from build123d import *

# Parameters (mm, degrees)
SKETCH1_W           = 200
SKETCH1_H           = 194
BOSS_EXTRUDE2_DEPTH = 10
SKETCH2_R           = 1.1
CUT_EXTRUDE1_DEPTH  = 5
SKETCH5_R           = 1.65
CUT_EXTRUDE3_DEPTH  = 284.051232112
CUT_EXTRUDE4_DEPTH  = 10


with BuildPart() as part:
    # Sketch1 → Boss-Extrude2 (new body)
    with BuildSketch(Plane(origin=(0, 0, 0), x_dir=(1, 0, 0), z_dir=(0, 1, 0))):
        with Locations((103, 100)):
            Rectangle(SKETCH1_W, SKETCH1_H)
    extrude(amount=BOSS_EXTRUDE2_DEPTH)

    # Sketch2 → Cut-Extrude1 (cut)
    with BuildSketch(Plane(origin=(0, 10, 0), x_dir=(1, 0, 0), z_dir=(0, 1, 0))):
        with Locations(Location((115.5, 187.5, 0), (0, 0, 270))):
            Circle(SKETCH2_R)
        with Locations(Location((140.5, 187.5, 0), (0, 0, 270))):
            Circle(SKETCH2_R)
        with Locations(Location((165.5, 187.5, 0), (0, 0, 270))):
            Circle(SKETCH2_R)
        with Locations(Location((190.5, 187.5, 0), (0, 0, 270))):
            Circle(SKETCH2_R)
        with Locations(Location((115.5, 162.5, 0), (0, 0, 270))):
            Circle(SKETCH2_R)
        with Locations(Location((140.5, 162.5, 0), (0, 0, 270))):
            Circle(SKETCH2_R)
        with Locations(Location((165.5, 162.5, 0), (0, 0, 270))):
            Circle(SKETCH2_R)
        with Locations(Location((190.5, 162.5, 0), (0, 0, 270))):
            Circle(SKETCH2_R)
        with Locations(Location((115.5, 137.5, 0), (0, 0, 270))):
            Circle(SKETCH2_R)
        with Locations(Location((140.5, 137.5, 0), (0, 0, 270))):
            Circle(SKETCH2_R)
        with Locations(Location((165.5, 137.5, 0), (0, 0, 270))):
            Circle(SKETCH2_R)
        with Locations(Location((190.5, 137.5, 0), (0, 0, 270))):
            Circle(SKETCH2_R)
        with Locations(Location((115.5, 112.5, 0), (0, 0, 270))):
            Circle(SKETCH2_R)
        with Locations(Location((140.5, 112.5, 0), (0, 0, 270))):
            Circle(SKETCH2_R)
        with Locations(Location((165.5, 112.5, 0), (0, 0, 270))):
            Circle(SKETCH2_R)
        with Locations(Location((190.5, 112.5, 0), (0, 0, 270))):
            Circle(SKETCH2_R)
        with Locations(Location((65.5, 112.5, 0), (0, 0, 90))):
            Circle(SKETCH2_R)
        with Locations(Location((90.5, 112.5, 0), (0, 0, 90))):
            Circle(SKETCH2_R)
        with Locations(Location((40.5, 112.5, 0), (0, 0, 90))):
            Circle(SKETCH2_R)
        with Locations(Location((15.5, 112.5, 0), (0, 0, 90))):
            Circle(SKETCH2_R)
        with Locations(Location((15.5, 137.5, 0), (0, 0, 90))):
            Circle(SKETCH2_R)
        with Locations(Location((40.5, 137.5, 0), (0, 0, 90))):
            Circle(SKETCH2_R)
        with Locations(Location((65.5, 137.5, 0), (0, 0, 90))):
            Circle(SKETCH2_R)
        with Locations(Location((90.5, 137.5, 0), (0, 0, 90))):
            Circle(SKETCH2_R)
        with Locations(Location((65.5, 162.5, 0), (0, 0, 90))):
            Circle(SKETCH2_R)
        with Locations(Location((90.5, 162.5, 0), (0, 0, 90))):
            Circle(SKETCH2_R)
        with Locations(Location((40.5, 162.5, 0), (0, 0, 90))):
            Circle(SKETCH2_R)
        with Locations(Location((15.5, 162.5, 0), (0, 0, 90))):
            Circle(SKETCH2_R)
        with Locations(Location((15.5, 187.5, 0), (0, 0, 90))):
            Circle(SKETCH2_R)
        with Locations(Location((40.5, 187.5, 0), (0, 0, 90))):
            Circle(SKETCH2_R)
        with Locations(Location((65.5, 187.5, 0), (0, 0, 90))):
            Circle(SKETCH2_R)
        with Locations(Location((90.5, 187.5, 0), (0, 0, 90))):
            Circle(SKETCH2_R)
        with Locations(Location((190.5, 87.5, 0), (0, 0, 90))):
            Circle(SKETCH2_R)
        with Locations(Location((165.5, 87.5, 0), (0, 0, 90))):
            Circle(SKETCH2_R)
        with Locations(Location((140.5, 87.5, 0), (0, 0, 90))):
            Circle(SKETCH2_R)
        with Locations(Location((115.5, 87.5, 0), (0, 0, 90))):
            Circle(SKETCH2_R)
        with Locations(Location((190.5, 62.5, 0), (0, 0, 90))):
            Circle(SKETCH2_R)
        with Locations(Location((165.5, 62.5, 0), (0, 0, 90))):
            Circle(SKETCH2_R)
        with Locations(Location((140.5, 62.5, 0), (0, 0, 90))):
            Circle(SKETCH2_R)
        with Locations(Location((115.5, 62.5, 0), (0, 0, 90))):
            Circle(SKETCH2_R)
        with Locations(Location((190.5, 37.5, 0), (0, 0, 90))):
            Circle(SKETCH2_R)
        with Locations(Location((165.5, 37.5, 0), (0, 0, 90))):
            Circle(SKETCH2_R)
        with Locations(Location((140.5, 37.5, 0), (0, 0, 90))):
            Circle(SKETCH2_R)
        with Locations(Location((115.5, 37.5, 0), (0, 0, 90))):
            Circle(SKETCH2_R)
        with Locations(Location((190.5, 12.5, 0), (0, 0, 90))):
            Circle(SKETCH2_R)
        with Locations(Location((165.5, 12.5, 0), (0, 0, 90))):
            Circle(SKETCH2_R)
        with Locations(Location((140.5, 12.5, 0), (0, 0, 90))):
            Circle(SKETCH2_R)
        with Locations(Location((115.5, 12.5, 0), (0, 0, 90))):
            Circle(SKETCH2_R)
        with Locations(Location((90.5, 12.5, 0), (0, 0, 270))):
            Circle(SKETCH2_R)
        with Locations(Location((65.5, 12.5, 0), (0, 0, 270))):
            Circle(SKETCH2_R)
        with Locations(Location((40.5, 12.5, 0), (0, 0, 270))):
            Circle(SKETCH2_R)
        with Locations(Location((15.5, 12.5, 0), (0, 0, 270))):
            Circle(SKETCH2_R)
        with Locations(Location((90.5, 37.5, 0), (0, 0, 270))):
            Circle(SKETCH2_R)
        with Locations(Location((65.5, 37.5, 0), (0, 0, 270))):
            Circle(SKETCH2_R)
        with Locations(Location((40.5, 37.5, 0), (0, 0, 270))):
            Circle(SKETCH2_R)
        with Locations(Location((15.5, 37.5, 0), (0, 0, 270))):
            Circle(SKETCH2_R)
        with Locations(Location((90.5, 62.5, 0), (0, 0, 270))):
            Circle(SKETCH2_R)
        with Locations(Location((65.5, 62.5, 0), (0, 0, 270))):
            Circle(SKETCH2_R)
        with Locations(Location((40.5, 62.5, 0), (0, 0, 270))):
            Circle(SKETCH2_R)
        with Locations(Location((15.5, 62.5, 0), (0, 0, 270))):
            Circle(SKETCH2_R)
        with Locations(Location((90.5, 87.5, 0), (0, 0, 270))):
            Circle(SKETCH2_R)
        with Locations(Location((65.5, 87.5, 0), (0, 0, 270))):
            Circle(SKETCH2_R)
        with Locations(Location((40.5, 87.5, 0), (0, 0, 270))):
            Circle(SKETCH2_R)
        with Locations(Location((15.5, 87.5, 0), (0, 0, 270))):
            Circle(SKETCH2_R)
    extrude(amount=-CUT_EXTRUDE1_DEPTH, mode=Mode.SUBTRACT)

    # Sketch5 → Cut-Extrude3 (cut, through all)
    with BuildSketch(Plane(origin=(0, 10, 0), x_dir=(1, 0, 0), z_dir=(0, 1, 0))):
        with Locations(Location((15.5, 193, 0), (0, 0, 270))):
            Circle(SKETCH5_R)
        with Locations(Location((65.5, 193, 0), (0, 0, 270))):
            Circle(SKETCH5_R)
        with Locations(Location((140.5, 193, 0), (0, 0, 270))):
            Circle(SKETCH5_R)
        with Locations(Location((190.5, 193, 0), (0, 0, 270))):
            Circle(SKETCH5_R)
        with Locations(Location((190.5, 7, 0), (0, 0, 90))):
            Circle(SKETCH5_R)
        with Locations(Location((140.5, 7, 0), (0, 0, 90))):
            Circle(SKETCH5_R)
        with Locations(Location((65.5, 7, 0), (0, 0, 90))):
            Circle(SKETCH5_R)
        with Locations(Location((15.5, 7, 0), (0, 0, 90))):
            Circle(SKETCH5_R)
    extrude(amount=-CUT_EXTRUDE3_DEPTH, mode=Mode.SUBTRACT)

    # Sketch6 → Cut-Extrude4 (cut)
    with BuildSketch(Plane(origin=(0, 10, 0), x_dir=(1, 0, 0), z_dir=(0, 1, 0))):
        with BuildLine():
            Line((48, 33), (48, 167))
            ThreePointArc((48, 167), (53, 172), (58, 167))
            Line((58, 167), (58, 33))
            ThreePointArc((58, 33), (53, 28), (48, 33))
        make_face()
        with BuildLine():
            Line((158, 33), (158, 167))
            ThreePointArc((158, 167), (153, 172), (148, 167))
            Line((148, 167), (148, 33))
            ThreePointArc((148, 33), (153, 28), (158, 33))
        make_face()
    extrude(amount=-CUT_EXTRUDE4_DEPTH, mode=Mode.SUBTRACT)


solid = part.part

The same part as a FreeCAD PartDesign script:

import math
import FreeCAD as App
import Part
import Sketcher

V = App.Vector
Q = App.Units.Quantity


def add_polygon(sketch, points):
    """Adds a closed chain of lines whose ends are joined by coincident constraints."""
    first, n = sketch.GeometryCount, len(points)
    for a, b in zip(points, points[1:] + points[:1]):
        sketch.addGeometry(Part.LineSegment(App.Vector(*a, 0), App.Vector(*b, 0)), False)
    for i in range(n):
        sketch.addConstraint(Sketcher.Constraint("Coincident", first + i, 2, first + (i + 1) % n, 1))

doc = App.newDocument("Part")
params = doc.addObject("Spreadsheet::Sheet", "Params")
for row, (alias, value) in enumerate([
    ("sketch1_width", "200 mm"),
    ("sketch1_height", "194 mm"),
    ("pad1_length", "10 mm"),
    ("sketch2_diameter", "2.2 mm"),
    ("pocket1_length", "5 mm"),
    ("sketch3_diameter", "3.3 mm"),
    ("sketch4_radius", "5 mm"),
    ("sketch4_height", "134 mm"),
    ("pocket3_length", "10 mm"),
], start=1):
    params.set(f"A{row}", alias)
    params.set(f"B{row}", "=" + value)
    params.setAlias(f"B{row}", alias)

body = doc.addObject("PartDesign::Body", "Body")

# Sketch on XZ plane
sketch1 = body.newObject("Sketcher::SketchObject", "Sketch")
sketch1.AttachmentSupport = (doc.getObject("XZ_Plane"), [""])
sketch1.MapMode = "FlatFace"
add_polygon(sketch1, [(3, -197), (3, -3), (203, -3), (203, -197)])  # lines 0-3
sketch1.addConstraint(Sketcher.Constraint("Vertical", 0))
sketch1.addConstraint(Sketcher.Constraint("Horizontal", 1))
sketch1.addConstraint(Sketcher.Constraint("Vertical", 2))
sketch1.addConstraint(Sketcher.Constraint("Horizontal", 3))
sketch1.addConstraint(Sketcher.Constraint("DistanceX", 1, 1, 1, 2, Q("200 mm")))
sketch1.addConstraint(Sketcher.Constraint("DistanceY", 0, 1, 0, 2, Q("194 mm")))
sketch1.addConstraint(Sketcher.Constraint("DistanceX", -1, 1, 0, 2, Q("3 mm")))
sketch1.addConstraint(Sketcher.Constraint("DistanceY", 0, 2, -1, 1, Q("3 mm")))
sketch1.setExpression("Constraints[8]", "Params.sketch1_width")
sketch1.setExpression("Constraints[9]", "Params.sketch1_height")
pad1 = body.newObject("PartDesign::Pad", "Pad")
pad1.Profile = sketch1
pad1.setExpression("Length", "Params.pad1_length")
pad1.Reversed = True

# Sketch on XZ plane
sketch2 = body.newObject("Sketcher::SketchObject", "Sketch001")
sketch2.AttachmentSupport = (doc.getObject("XZ_Plane"), [""])
sketch2.MapMode = "FlatFace"
sketch2.AttachmentOffset = App.Placement(V(0, 0, -10), App.Rotation())
sketch2.addGeometry(Part.Circle(V(115.5, -187.5, 0), V(0, 0, 1), 1.1), False)
sketch2.addGeometry(Part.Circle(V(140.5, -187.5, 0), V(0, 0, 1), 1.1), False)
sketch2.addGeometry(Part.Circle(V(165.5, -187.5, 0), V(0, 0, 1), 1.1), False)
sketch2.addGeometry(Part.Circle(V(190.5, -187.5, 0), V(0, 0, 1), 1.1), False)
sketch2.addGeometry(Part.Circle(V(115.5, -162.5, 0), V(0, 0, 1), 1.1), False)
sketch2.addGeometry(Part.Circle(V(140.5, -162.5, 0), V(0, 0, 1), 1.1), False)
sketch2.addGeometry(Part.Circle(V(165.5, -162.5, 0), V(0, 0, 1), 1.1), False)
sketch2.addGeometry(Part.Circle(V(190.5, -162.5, 0), V(0, 0, 1), 1.1), False)
sketch2.addGeometry(Part.Circle(V(115.5, -137.5, 0), V(0, 0, 1), 1.1), False)
sketch2.addGeometry(Part.Circle(V(140.5, -137.5, 0), V(0, 0, 1), 1.1), False)
sketch2.addGeometry(Part.Circle(V(165.5, -137.5, 0), V(0, 0, 1), 1.1), False)
sketch2.addGeometry(Part.Circle(V(190.5, -137.5, 0), V(0, 0, 1), 1.1), False)
sketch2.addGeometry(Part.Circle(V(115.5, -112.5, 0), V(0, 0, 1), 1.1), False)
sketch2.addGeometry(Part.Circle(V(140.5, -112.5, 0), V(0, 0, 1), 1.1), False)
sketch2.addGeometry(Part.Circle(V(165.5, -112.5, 0), V(0, 0, 1), 1.1), False)
sketch2.addGeometry(Part.Circle(V(190.5, -112.5, 0), V(0, 0, 1), 1.1), False)
sketch2.addGeometry(Part.Circle(V(65.5, -112.5, 0), V(0, 0, 1), 1.1), False)
sketch2.addGeometry(Part.Circle(V(90.5, -112.5, 0), V(0, 0, 1), 1.1), False)
sketch2.addGeometry(Part.Circle(V(40.5, -112.5, 0), V(0, 0, 1), 1.1), False)
sketch2.addGeometry(Part.Circle(V(15.5, -112.5, 0), V(0, 0, 1), 1.1), False)
sketch2.addGeometry(Part.Circle(V(15.5, -137.5, 0), V(0, 0, 1), 1.1), False)
sketch2.addGeometry(Part.Circle(V(40.5, -137.5, 0), V(0, 0, 1), 1.1), False)
sketch2.addGeometry(Part.Circle(V(65.5, -137.5, 0), V(0, 0, 1), 1.1), False)
sketch2.addGeometry(Part.Circle(V(90.5, -137.5, 0), V(0, 0, 1), 1.1), False)
sketch2.addGeometry(Part.Circle(V(65.5, -162.5, 0), V(0, 0, 1), 1.1), False)
sketch2.addGeometry(Part.Circle(V(90.5, -162.5, 0), V(0, 0, 1), 1.1), False)
sketch2.addGeometry(Part.Circle(V(40.5, -162.5, 0), V(0, 0, 1), 1.1), False)
sketch2.addGeometry(Part.Circle(V(15.5, -162.5, 0), V(0, 0, 1), 1.1), False)
sketch2.addGeometry(Part.Circle(V(15.5, -187.5, 0), V(0, 0, 1), 1.1), False)
sketch2.addGeometry(Part.Circle(V(40.5, -187.5, 0), V(0, 0, 1), 1.1), False)
sketch2.addGeometry(Part.Circle(V(65.5, -187.5, 0), V(0, 0, 1), 1.1), False)
sketch2.addGeometry(Part.Circle(V(90.5, -187.5, 0), V(0, 0, 1), 1.1), False)
sketch2.addGeometry(Part.Circle(V(190.5, -87.5, 0), V(0, 0, 1), 1.1), False)
sketch2.addGeometry(Part.Circle(V(165.5, -87.5, 0), V(0, 0, 1), 1.1), False)
sketch2.addGeometry(Part.Circle(V(140.5, -87.5, 0), V(0, 0, 1), 1.1), False)
sketch2.addGeometry(Part.Circle(V(115.5, -87.5, 0), V(0, 0, 1), 1.1), False)
sketch2.addGeometry(Part.Circle(V(190.5, -62.5, 0), V(0, 0, 1), 1.1), False)
sketch2.addGeometry(Part.Circle(V(165.5, -62.5, 0), V(0, 0, 1), 1.1), False)
sketch2.addGeometry(Part.Circle(V(140.5, -62.5, 0), V(0, 0, 1), 1.1), False)
sketch2.addGeometry(Part.Circle(V(115.5, -62.5, 0), V(0, 0, 1), 1.1), False)
sketch2.addGeometry(Part.Circle(V(190.5, -37.5, 0), V(0, 0, 1), 1.1), False)
sketch2.addGeometry(Part.Circle(V(165.5, -37.5, 0), V(0, 0, 1), 1.1), False)
sketch2.addGeometry(Part.Circle(V(140.5, -37.5, 0), V(0, 0, 1), 1.1), False)
sketch2.addGeometry(Part.Circle(V(115.5, -37.5, 0), V(0, 0, 1), 1.1), False)
sketch2.addGeometry(Part.Circle(V(190.5, -12.5, 0), V(0, 0, 1), 1.1), False)
sketch2.addGeometry(Part.Circle(V(165.5, -12.5, 0), V(0, 0, 1), 1.1), False)
sketch2.addGeometry(Part.Circle(V(140.5, -12.5, 0), V(0, 0, 1), 1.1), False)
sketch2.addGeometry(Part.Circle(V(115.5, -12.5, 0), V(0, 0, 1), 1.1), False)
sketch2.addGeometry(Part.Circle(V(90.5, -12.5, 0), V(0, 0, 1), 1.1), False)
sketch2.addGeometry(Part.Circle(V(65.5, -12.5, 0), V(0, 0, 1), 1.1), False)
sketch2.addGeometry(Part.Circle(V(40.5, -12.5, 0), V(0, 0, 1), 1.1), False)
sketch2.addGeometry(Part.Circle(V(15.5, -12.5, 0), V(0, 0, 1), 1.1), False)
sketch2.addGeometry(Part.Circle(V(90.5, -37.5, 0), V(0, 0, 1), 1.1), False)
sketch2.addGeometry(Part.Circle(V(65.5, -37.5, 0), V(0, 0, 1), 1.1), False)
sketch2.addGeometry(Part.Circle(V(40.5, -37.5, 0), V(0, 0, 1), 1.1), False)
sketch2.addGeometry(Part.Circle(V(15.5, -37.5, 0), V(0, 0, 1), 1.1), False)
sketch2.addGeometry(Part.Circle(V(90.5, -62.5, 0), V(0, 0, 1), 1.1), False)
sketch2.addGeometry(Part.Circle(V(65.5, -62.5, 0), V(0, 0, 1), 1.1), False)
sketch2.addGeometry(Part.Circle(V(40.5, -62.5, 0), V(0, 0, 1), 1.1), False)
sketch2.addGeometry(Part.Circle(V(15.5, -62.5, 0), V(0, 0, 1), 1.1), False)
sketch2.addGeometry(Part.Circle(V(90.5, -87.5, 0), V(0, 0, 1), 1.1), False)
sketch2.addGeometry(Part.Circle(V(65.5, -87.5, 0), V(0, 0, 1), 1.1), False)
sketch2.addGeometry(Part.Circle(V(40.5, -87.5, 0), V(0, 0, 1), 1.1), False)
sketch2.addGeometry(Part.Circle(V(15.5, -87.5, 0), V(0, 0, 1), 1.1), False)
sketch2.addConstraint(Sketcher.Constraint("Equal", 0, 1))
sketch2.addConstraint(Sketcher.Constraint("Equal", 1, 2))
sketch2.addConstraint(Sketcher.Constraint("Equal", 2, 3))
sketch2.addConstraint(Sketcher.Constraint("Equal", 3, 4))
sketch2.addConstraint(Sketcher.Constraint("Equal", 4, 5))
sketch2.addConstraint(Sketcher.Constraint("Equal", 5, 6))
sketch2.addConstraint(Sketcher.Constraint("Equal", 6, 7))
sketch2.addConstraint(Sketcher.Constraint("Equal", 7, 8))
sketch2.addConstraint(Sketcher.Constraint("Equal", 8, 9))
sketch2.addConstraint(Sketcher.Constraint("Equal", 9, 10))
sketch2.addConstraint(Sketcher.Constraint("Equal", 10, 11))
sketch2.addConstraint(Sketcher.Constraint("Equal", 11, 12))
sketch2.addConstraint(Sketcher.Constraint("Equal", 12, 13))
sketch2.addConstraint(Sketcher.Constraint("Equal", 13, 14))
sketch2.addConstraint(Sketcher.Constraint("Equal", 14, 15))
sketch2.addConstraint(Sketcher.Constraint("Equal", 15, 16))
sketch2.addConstraint(Sketcher.Constraint("Equal", 16, 17))
sketch2.addConstraint(Sketcher.Constraint("Equal", 17, 18))
sketch2.addConstraint(Sketcher.Constraint("Equal", 18, 19))
sketch2.addConstraint(Sketcher.Constraint("Equal", 19, 20))
sketch2.addConstraint(Sketcher.Constraint("Equal", 20, 21))
sketch2.addConstraint(Sketcher.Constraint("Equal", 21, 22))
sketch2.addConstraint(Sketcher.Constraint("Equal", 22, 23))
sketch2.addConstraint(Sketcher.Constraint("Equal", 23, 24))
sketch2.addConstraint(Sketcher.Constraint("Equal", 24, 25))
sketch2.addConstraint(Sketcher.Constraint("Equal", 25, 26))
sketch2.addConstraint(Sketcher.Constraint("Equal", 26, 27))
sketch2.addConstraint(Sketcher.Constraint("Equal", 27, 28))
sketch2.addConstraint(Sketcher.Constraint("Equal", 28, 29))
sketch2.addConstraint(Sketcher.Constraint("Equal", 29, 30))
sketch2.addConstraint(Sketcher.Constraint("Equal", 30, 31))
sketch2.addConstraint(Sketcher.Constraint("Equal", 31, 32))
sketch2.addConstraint(Sketcher.Constraint("Equal", 32, 33))
sketch2.addConstraint(Sketcher.Constraint("Equal", 33, 34))
sketch2.addConstraint(Sketcher.Constraint("Equal", 34, 35))
sketch2.addConstraint(Sketcher.Constraint("Equal", 35, 36))
sketch2.addConstraint(Sketcher.Constraint("Equal", 36, 37))
sketch2.addConstraint(Sketcher.Constraint("Equal", 37, 38))
sketch2.addConstraint(Sketcher.Constraint("Equal", 38, 39))
sketch2.addConstraint(Sketcher.Constraint("Equal", 39, 40))
sketch2.addConstraint(Sketcher.Constraint("Equal", 40, 41))
sketch2.addConstraint(Sketcher.Constraint("Equal", 41, 42))
sketch2.addConstraint(Sketcher.Constraint("Equal", 42, 43))
sketch2.addConstraint(Sketcher.Constraint("Equal", 43, 44))
sketch2.addConstraint(Sketcher.Constraint("Equal", 44, 45))
sketch2.addConstraint(Sketcher.Constraint("Equal", 45, 46))
sketch2.addConstraint(Sketcher.Constraint("Equal", 46, 47))
sketch2.addConstraint(Sketcher.Constraint("Equal", 47, 48))
sketch2.addConstraint(Sketcher.Constraint("Equal", 48, 49))
sketch2.addConstraint(Sketcher.Constraint("Equal", 49, 50))
sketch2.addConstraint(Sketcher.Constraint("Equal", 50, 51))
sketch2.addConstraint(Sketcher.Constraint("Equal", 51, 52))
sketch2.addConstraint(Sketcher.Constraint("Equal", 52, 53))
sketch2.addConstraint(Sketcher.Constraint("Equal", 53, 54))
sketch2.addConstraint(Sketcher.Constraint("Equal", 54, 55))
sketch2.addConstraint(Sketcher.Constraint("Equal", 55, 56))
sketch2.addConstraint(Sketcher.Constraint("Equal", 56, 57))
sketch2.addConstraint(Sketcher.Constraint("Equal", 57, 58))
sketch2.addConstraint(Sketcher.Constraint("Equal", 58, 59))
sketch2.addConstraint(Sketcher.Constraint("Equal", 59, 60))
sketch2.addConstraint(Sketcher.Constraint("Equal", 60, 61))
sketch2.addConstraint(Sketcher.Constraint("Equal", 61, 62))
sketch2.addConstraint(Sketcher.Constraint("Equal", 62, 63))
sketch2.addConstraint(Sketcher.Constraint("Horizontal", 0, 3, 1, 3))
sketch2.addConstraint(Sketcher.Constraint("Horizontal", 1, 3, 2, 3))
sketch2.addConstraint(Sketcher.Constraint("Horizontal", 2, 3, 3, 3))
sketch2.addConstraint(Sketcher.Constraint("Horizontal", 4, 3, 5, 3))
sketch2.addConstraint(Sketcher.Constraint("Horizontal", 5, 3, 6, 3))
sketch2.addConstraint(Sketcher.Constraint("Horizontal", 6, 3, 7, 3))
sketch2.addConstraint(Sketcher.Constraint("Horizontal", 8, 3, 9, 3))
sketch2.addConstraint(Sketcher.Constraint("Horizontal", 9, 3, 10, 3))
sketch2.addConstraint(Sketcher.Constraint("Horizontal", 10, 3, 11, 3))
sketch2.addConstraint(Sketcher.Constraint("Horizontal", 12, 3, 13, 3))
sketch2.addConstraint(Sketcher.Constraint("Horizontal", 13, 3, 14, 3))
sketch2.addConstraint(Sketcher.Constraint("Horizontal", 14, 3, 15, 3))
sketch2.addConstraint(Sketcher.Constraint("Horizontal", 15, 3, 16, 3))
sketch2.addConstraint(Sketcher.Constraint("Horizontal", 16, 3, 17, 3))
sketch2.addConstraint(Sketcher.Constraint("Horizontal", 17, 3, 18, 3))
sketch2.addConstraint(Sketcher.Constraint("Horizontal", 18, 3, 19, 3))
sketch2.addConstraint(Sketcher.Constraint("Horizontal", 11, 3, 20, 3))
sketch2.addConstraint(Sketcher.Constraint("Horizontal", 20, 3, 21, 3))
sketch2.addConstraint(Sketcher.Constraint("Horizontal", 21, 3, 22, 3))
sketch2.addConstraint(Sketcher.Constraint("Horizontal", 22, 3, 23, 3))
sketch2.addConstraint(Sketcher.Constraint("Horizontal", 7, 3, 24, 3))
sketch2.addConstraint(Sketcher.Constraint("Horizontal", 24, 3, 25, 3))
sketch2.addConstraint(Sketcher.Constraint("Horizontal", 25, 3, 26, 3))
sketch2.addConstraint(Sketcher.Constraint("Horizontal", 26, 3, 27, 3))
sketch2.addConstraint(Sketcher.Constraint("Horizontal", 3, 3, 28, 3))
sketch2.addConstraint(Sketcher.Constraint("Horizontal", 28, 3, 29, 3))
sketch2.addConstraint(Sketcher.Constraint("Horizontal", 29, 3, 30, 3))
sketch2.addConstraint(Sketcher.Constraint("Horizontal", 30, 3, 31, 3))
sketch2.addConstraint(Sketcher.Constraint("Horizontal", 32, 3, 33, 3))
sketch2.addConstraint(Sketcher.Constraint("Horizontal", 33, 3, 34, 3))
sketch2.addConstraint(Sketcher.Constraint("Horizontal", 34, 3, 35, 3))
sketch2.addConstraint(Sketcher.Constraint("Horizontal", 36, 3, 37, 3))
sketch2.addConstraint(Sketcher.Constraint("Horizontal", 37, 3, 38, 3))
sketch2.addConstraint(Sketcher.Constraint("Horizontal", 38, 3, 39, 3))
sketch2.addConstraint(Sketcher.Constraint("Horizontal", 40, 3, 41, 3))
sketch2.addConstraint(Sketcher.Constraint("Horizontal", 41, 3, 42, 3))
sketch2.addConstraint(Sketcher.Constraint("Horizontal", 42, 3, 43, 3))
sketch2.addConstraint(Sketcher.Constraint("Horizontal", 44, 3, 45, 3))
sketch2.addConstraint(Sketcher.Constraint("Horizontal", 45, 3, 46, 3))
sketch2.addConstraint(Sketcher.Constraint("Horizontal", 46, 3, 47, 3))
sketch2.addConstraint(Sketcher.Constraint("Horizontal", 47, 3, 48, 3))
sketch2.addConstraint(Sketcher.Constraint("Horizontal", 48, 3, 49, 3))
sketch2.addConstraint(Sketcher.Constraint("Horizontal", 49, 3, 50, 3))
sketch2.addConstraint(Sketcher.Constraint("Horizontal", 50, 3, 51, 3))
sketch2.addConstraint(Sketcher.Constraint("Horizontal", 43, 3, 52, 3))
sketch2.addConstraint(Sketcher.Constraint("Horizontal", 52, 3, 53, 3))
sketch2.addConstraint(Sketcher.Constraint("Horizontal", 53, 3, 54, 3))
sketch2.addConstraint(Sketcher.Constraint("Horizontal", 54, 3, 55, 3))
sketch2.addConstraint(Sketcher.Constraint("Horizontal", 39, 3, 56, 3))
sketch2.addConstraint(Sketcher.Constraint("Horizontal", 56, 3, 57, 3))
sketch2.addConstraint(Sketcher.Constraint("Horizontal", 57, 3, 58, 3))
sketch2.addConstraint(Sketcher.Constraint("Horizontal", 58, 3, 59, 3))
sketch2.addConstraint(Sketcher.Constraint("Horizontal", 35, 3, 60, 3))
sketch2.addConstraint(Sketcher.Constraint("Horizontal", 60, 3, 61, 3))
sketch2.addConstraint(Sketcher.Constraint("Horizontal", 61, 3, 62, 3))
sketch2.addConstraint(Sketcher.Constraint("Horizontal", 62, 3, 63, 3))
sketch2.addConstraint(Sketcher.Constraint("Vertical", 0, 3, 4, 3))
sketch2.addConstraint(Sketcher.Constraint("Vertical", 1, 3, 5, 3))
sketch2.addConstraint(Sketcher.Constraint("Vertical", 2, 3, 6, 3))
sketch2.addConstraint(Sketcher.Constraint("Vertical", 3, 3, 7, 3))
sketch2.addConstraint(Sketcher.Constraint("Vertical", 4, 3, 8, 3))
sketch2.addConstraint(Sketcher.Constraint("Vertical", 5, 3, 9, 3))
sketch2.addConstraint(Sketcher.Constraint("Vertical", 6, 3, 10, 3))
sketch2.addConstraint(Sketcher.Constraint("Vertical", 7, 3, 11, 3))
sketch2.addConstraint(Sketcher.Constraint("Vertical", 8, 3, 12, 3))
sketch2.addConstraint(Sketcher.Constraint("Vertical", 9, 3, 13, 3))
sketch2.addConstraint(Sketcher.Constraint("Vertical", 10, 3, 14, 3))
sketch2.addConstraint(Sketcher.Constraint("Vertical", 11, 3, 15, 3))
sketch2.addConstraint(Sketcher.Constraint("Vertical", 19, 3, 20, 3))
sketch2.addConstraint(Sketcher.Constraint("Vertical", 18, 3, 21, 3))
sketch2.addConstraint(Sketcher.Constraint("Vertical", 16, 3, 22, 3))
sketch2.addConstraint(Sketcher.Constraint("Vertical", 17, 3, 23, 3))
sketch2.addConstraint(Sketcher.Constraint("Vertical", 22, 3, 24, 3))
sketch2.addConstraint(Sketcher.Constraint("Vertical", 23, 3, 25, 3))
sketch2.addConstraint(Sketcher.Constraint("Vertical", 21, 3, 26, 3))
sketch2.addConstraint(Sketcher.Constraint("Vertical", 20, 3, 27, 3))
sketch2.addConstraint(Sketcher.Constraint("Vertical", 27, 3, 28, 3))
sketch2.addConstraint(Sketcher.Constraint("Vertical", 26, 3, 29, 3))
sketch2.addConstraint(Sketcher.Constraint("Vertical", 24, 3, 30, 3))
sketch2.addConstraint(Sketcher.Constraint("Vertical", 25, 3, 31, 3))
sketch2.addConstraint(Sketcher.Constraint("Vertical", 15, 3, 32, 3))
sketch2.addConstraint(Sketcher.Constraint("Vertical", 14, 3, 33, 3))
sketch2.addConstraint(Sketcher.Constraint("Vertical", 13, 3, 34, 3))
sketch2.addConstraint(Sketcher.Constraint("Vertical", 12, 3, 35, 3))
sketch2.addConstraint(Sketcher.Constraint("Vertical", 32, 3, 36, 3))
sketch2.addConstraint(Sketcher.Constraint("Vertical", 33, 3, 37, 3))
sketch2.addConstraint(Sketcher.Constraint("Vertical", 34, 3, 38, 3))
sketch2.addConstraint(Sketcher.Constraint("Vertical", 35, 3, 39, 3))
sketch2.addConstraint(Sketcher.Constraint("Vertical", 36, 3, 40, 3))
sketch2.addConstraint(Sketcher.Constraint("Vertical", 37, 3, 41, 3))
sketch2.addConstraint(Sketcher.Constraint("Vertical", 38, 3, 42, 3))
sketch2.addConstraint(Sketcher.Constraint("Vertical", 39, 3, 43, 3))
sketch2.addConstraint(Sketcher.Constraint("Vertical", 40, 3, 44, 3))
sketch2.addConstraint(Sketcher.Constraint("Vertical", 41, 3, 45, 3))
sketch2.addConstraint(Sketcher.Constraint("Vertical", 42, 3, 46, 3))
sketch2.addConstraint(Sketcher.Constraint("Vertical", 43, 3, 47, 3))
sketch2.addConstraint(Sketcher.Constraint("Vertical", 31, 3, 48, 3))
sketch2.addConstraint(Sketcher.Constraint("Vertical", 30, 3, 49, 3))
sketch2.addConstraint(Sketcher.Constraint("Vertical", 29, 3, 50, 3))
sketch2.addConstraint(Sketcher.Constraint("Vertical", 28, 3, 51, 3))
sketch2.addConstraint(Sketcher.Constraint("Vertical", 48, 3, 52, 3))
sketch2.addConstraint(Sketcher.Constraint("Vertical", 49, 3, 53, 3))
sketch2.addConstraint(Sketcher.Constraint("Vertical", 50, 3, 54, 3))
sketch2.addConstraint(Sketcher.Constraint("Vertical", 51, 3, 55, 3))
sketch2.addConstraint(Sketcher.Constraint("Vertical", 52, 3, 56, 3))
sketch2.addConstraint(Sketcher.Constraint("Vertical", 53, 3, 57, 3))
sketch2.addConstraint(Sketcher.Constraint("Vertical", 54, 3, 58, 3))
sketch2.addConstraint(Sketcher.Constraint("Vertical", 55, 3, 59, 3))
sketch2.addConstraint(Sketcher.Constraint("Vertical", 56, 3, 60, 3))
sketch2.addConstraint(Sketcher.Constraint("Vertical", 57, 3, 61, 3))
sketch2.addConstraint(Sketcher.Constraint("Vertical", 58, 3, 62, 3))
sketch2.addConstraint(Sketcher.Constraint("Vertical", 59, 3, 63, 3))
sketch2.addConstraint(Sketcher.Constraint("Diameter", 0, Q("2.2 mm")))
sketch2.addConstraint(Sketcher.Constraint("DistanceX", -1, 1, 0, 3, Q("115.5 mm")))
sketch2.addConstraint(Sketcher.Constraint("DistanceY", 0, 3, -1, 1, Q("187.5 mm")))
sketch2.addConstraint(Sketcher.Constraint("DistanceX", -1, 1, 1, 3, Q("140.5 mm")))
sketch2.addConstraint(Sketcher.Constraint("DistanceX", -1, 1, 2, 3, Q("165.5 mm")))
sketch2.addConstraint(Sketcher.Constraint("DistanceX", -1, 1, 3, 3, Q("190.5 mm")))
sketch2.addConstraint(Sketcher.Constraint("DistanceY", 4, 3, -1, 1, Q("162.5 mm")))
sketch2.addConstraint(Sketcher.Constraint("DistanceY", 8, 3, -1, 1, Q("137.5 mm")))
sketch2.addConstraint(Sketcher.Constraint("DistanceY", 12, 3, -1, 1, Q("112.5 mm")))
sketch2.addConstraint(Sketcher.Constraint("DistanceX", -1, 1, 16, 3, Q("65.5 mm")))
sketch2.addConstraint(Sketcher.Constraint("DistanceX", -1, 1, 17, 3, Q("90.5 mm")))
sketch2.addConstraint(Sketcher.Constraint("DistanceX", -1, 1, 18, 3, Q("40.5 mm")))
sketch2.addConstraint(Sketcher.Constraint("DistanceX", -1, 1, 19, 3, Q("15.5 mm")))
sketch2.addConstraint(Sketcher.Constraint("DistanceY", 32, 3, -1, 1, Q("87.5 mm")))
sketch2.addConstraint(Sketcher.Constraint("DistanceY", 36, 3, -1, 1, Q("62.5 mm")))
sketch2.addConstraint(Sketcher.Constraint("DistanceY", 40, 3, -1, 1, Q("37.5 mm")))
sketch2.addConstraint(Sketcher.Constraint("DistanceY", 44, 3, -1, 1, Q("12.5 mm")))
sketch2.setExpression("Constraints[175]", "Params.sketch2_diameter")
pocket1 = body.newObject("PartDesign::Pocket", "Pocket")
pocket1.Profile = sketch2
pocket1.setExpression("Length", "Params.pocket1_length")
pocket1.Reversed = True

# Sketch on XZ plane
sketch3 = body.newObject("Sketcher::SketchObject", "Sketch002")
sketch3.AttachmentSupport = (doc.getObject("XZ_Plane"), [""])
sketch3.MapMode = "FlatFace"
sketch3.AttachmentOffset = App.Placement(V(0, 0, -10), App.Rotation())
sketch3.addGeometry(Part.Circle(V(15.5, -193, 0), V(0, 0, 1), 1.65), False)
sketch3.addGeometry(Part.Circle(V(65.5, -193, 0), V(0, 0, 1), 1.65), False)
sketch3.addGeometry(Part.Circle(V(140.5, -193, 0), V(0, 0, 1), 1.65), False)
sketch3.addGeometry(Part.Circle(V(190.5, -193, 0), V(0, 0, 1), 1.65), False)
sketch3.addGeometry(Part.Circle(V(190.5, -7, 0), V(0, 0, 1), 1.65), False)
sketch3.addGeometry(Part.Circle(V(140.5, -7, 0), V(0, 0, 1), 1.65), False)
sketch3.addGeometry(Part.Circle(V(65.5, -7, 0), V(0, 0, 1), 1.65), False)
sketch3.addGeometry(Part.Circle(V(15.5, -7, 0), V(0, 0, 1), 1.65), False)
sketch3.addConstraint(Sketcher.Constraint("Equal", 0, 1))
sketch3.addConstraint(Sketcher.Constraint("Equal", 1, 2))
sketch3.addConstraint(Sketcher.Constraint("Equal", 2, 3))
sketch3.addConstraint(Sketcher.Constraint("Equal", 3, 4))
sketch3.addConstraint(Sketcher.Constraint("Equal", 4, 5))
sketch3.addConstraint(Sketcher.Constraint("Equal", 5, 6))
sketch3.addConstraint(Sketcher.Constraint("Equal", 6, 7))
sketch3.addConstraint(Sketcher.Constraint("Horizontal", 0, 3, 1, 3))
sketch3.addConstraint(Sketcher.Constraint("Horizontal", 1, 3, 2, 3))
sketch3.addConstraint(Sketcher.Constraint("Horizontal", 2, 3, 3, 3))
sketch3.addConstraint(Sketcher.Constraint("Horizontal", 4, 3, 5, 3))
sketch3.addConstraint(Sketcher.Constraint("Horizontal", 5, 3, 6, 3))
sketch3.addConstraint(Sketcher.Constraint("Horizontal", 6, 3, 7, 3))
sketch3.addConstraint(Sketcher.Constraint("Vertical", 3, 3, 4, 3))
sketch3.addConstraint(Sketcher.Constraint("Vertical", 2, 3, 5, 3))
sketch3.addConstraint(Sketcher.Constraint("Vertical", 1, 3, 6, 3))
sketch3.addConstraint(Sketcher.Constraint("Vertical", 0, 3, 7, 3))
sketch3.addConstraint(Sketcher.Constraint("Diameter", 0, Q("3.3 mm")))
sketch3.addConstraint(Sketcher.Constraint("DistanceY", 0, 3, -1, 1, Q("193 mm")))
sketch3.addConstraint(Sketcher.Constraint("DistanceY", 4, 3, -1, 1, Q("7 mm")))
sketch3.addConstraint(Sketcher.Constraint("DistanceX", 0, 3, 1, 3, Q("50 mm")))
sketch3.addConstraint(Sketcher.Constraint("DistanceX", 1, 3, 2, 3, Q("75 mm")))
sketch3.addConstraint(Sketcher.Constraint("DistanceX", 2, 3, 3, 3, Q("50 mm")))
sketch3.addConstraint(Sketcher.Constraint("DistanceX", -1, 1, 0, 3, Q("15.5 mm")))
sketch3.setExpression("Constraints[17]", "Params.sketch3_diameter")
pocket2 = body.newObject("PartDesign::Pocket", "Pocket001")
pocket2.Profile = sketch3
pocket2.Type = "ThroughAll"
pocket2.Reversed = True

# Sketch on XZ plane
sketch4 = body.newObject("Sketcher::SketchObject", "Sketch003")
sketch4.AttachmentSupport = (doc.getObject("XZ_Plane"), [""])
sketch4.MapMode = "FlatFace"
sketch4.AttachmentOffset = App.Placement(V(0, 0, -10), App.Rotation())
sketch4.addGeometry(Part.LineSegment(V(48, -167, 0), V(48, -33, 0)), False)
sketch4.addGeometry(Part.ArcOfCircle(Part.Circle(V(53, -33, 0), V(0, 0, 1), 5), math.radians(0), math.radians(180)), False)
sketch4.addGeometry(Part.LineSegment(V(58, -33, 0), V(58, -167, 0)), False)
sketch4.addGeometry(Part.ArcOfCircle(Part.Circle(V(53, -167, 0), V(0, 0, 1), 5), math.radians(180), math.radians(360)), False)
sketch4.addGeometry(Part.LineSegment(V(158, -33, 0), V(158, -167, 0)), False)
sketch4.addGeometry(Part.ArcOfCircle(Part.Circle(V(153, -167, 0), V(0, 0, 1), 5), math.radians(180), math.radians(360)), False)
sketch4.addGeometry(Part.LineSegment(V(148, -167, 0), V(148, -33, 0)), False)
sketch4.addGeometry(Part.ArcOfCircle(Part.Circle(V(153, -33, 0), V(0, 0, 1), 5), math.radians(0), math.radians(180)), False)
sketch4.addConstraint(Sketcher.Constraint("Tangent", 0, 2, 1, 2))
sketch4.addConstraint(Sketcher.Constraint("Tangent", 1, 1, 2, 1))
sketch4.addConstraint(Sketcher.Constraint("Tangent", 2, 2, 3, 2))
sketch4.addConstraint(Sketcher.Constraint("Tangent", 3, 1, 0, 1))
sketch4.addConstraint(Sketcher.Constraint("Tangent", 4, 2, 5, 2))
sketch4.addConstraint(Sketcher.Constraint("Tangent", 5, 1, 6, 1))
sketch4.addConstraint(Sketcher.Constraint("Tangent", 6, 2, 7, 2))
sketch4.addConstraint(Sketcher.Constraint("Tangent", 7, 1, 4, 1))
sketch4.addConstraint(Sketcher.Constraint("Vertical", 0))
sketch4.addConstraint(Sketcher.Constraint("Vertical", 2))
sketch4.addConstraint(Sketcher.Constraint("Vertical", 4))
sketch4.addConstraint(Sketcher.Constraint("Vertical", 6))
sketch4.addConstraint(Sketcher.Constraint("Equal", 3, 5))
sketch4.addConstraint(Sketcher.Constraint("Horizontal", 3, 3, 5, 3))
sketch4.addConstraint(Sketcher.Constraint("Horizontal", 1, 3, 7, 3))
sketch4.addConstraint(Sketcher.Constraint("Radius", 1, Q("5 mm")))
sketch4.addConstraint(Sketcher.Constraint("DistanceY", 0, 1, 0, 2, Q("134 mm")))
sketch4.addConstraint(Sketcher.Constraint("DistanceX", -1, 1, 1, 3, Q("53 mm")))
sketch4.addConstraint(Sketcher.Constraint("DistanceY", 1, 3, -1, 1, Q("33 mm")))
sketch4.addConstraint(Sketcher.Constraint("DistanceX", -1, 1, 5, 3, Q("153 mm")))
sketch4.setExpression("Constraints[15]", "Params.sketch4_radius")
sketch4.setExpression("Constraints[16]", "Params.sketch4_height")
pocket3 = body.newObject("PartDesign::Pocket", "Pocket002")
pocket3.Profile = sketch4
pocket3.setExpression("Length", "Params.pocket3_length")
pocket3.Reversed = True

doc.recompute()
